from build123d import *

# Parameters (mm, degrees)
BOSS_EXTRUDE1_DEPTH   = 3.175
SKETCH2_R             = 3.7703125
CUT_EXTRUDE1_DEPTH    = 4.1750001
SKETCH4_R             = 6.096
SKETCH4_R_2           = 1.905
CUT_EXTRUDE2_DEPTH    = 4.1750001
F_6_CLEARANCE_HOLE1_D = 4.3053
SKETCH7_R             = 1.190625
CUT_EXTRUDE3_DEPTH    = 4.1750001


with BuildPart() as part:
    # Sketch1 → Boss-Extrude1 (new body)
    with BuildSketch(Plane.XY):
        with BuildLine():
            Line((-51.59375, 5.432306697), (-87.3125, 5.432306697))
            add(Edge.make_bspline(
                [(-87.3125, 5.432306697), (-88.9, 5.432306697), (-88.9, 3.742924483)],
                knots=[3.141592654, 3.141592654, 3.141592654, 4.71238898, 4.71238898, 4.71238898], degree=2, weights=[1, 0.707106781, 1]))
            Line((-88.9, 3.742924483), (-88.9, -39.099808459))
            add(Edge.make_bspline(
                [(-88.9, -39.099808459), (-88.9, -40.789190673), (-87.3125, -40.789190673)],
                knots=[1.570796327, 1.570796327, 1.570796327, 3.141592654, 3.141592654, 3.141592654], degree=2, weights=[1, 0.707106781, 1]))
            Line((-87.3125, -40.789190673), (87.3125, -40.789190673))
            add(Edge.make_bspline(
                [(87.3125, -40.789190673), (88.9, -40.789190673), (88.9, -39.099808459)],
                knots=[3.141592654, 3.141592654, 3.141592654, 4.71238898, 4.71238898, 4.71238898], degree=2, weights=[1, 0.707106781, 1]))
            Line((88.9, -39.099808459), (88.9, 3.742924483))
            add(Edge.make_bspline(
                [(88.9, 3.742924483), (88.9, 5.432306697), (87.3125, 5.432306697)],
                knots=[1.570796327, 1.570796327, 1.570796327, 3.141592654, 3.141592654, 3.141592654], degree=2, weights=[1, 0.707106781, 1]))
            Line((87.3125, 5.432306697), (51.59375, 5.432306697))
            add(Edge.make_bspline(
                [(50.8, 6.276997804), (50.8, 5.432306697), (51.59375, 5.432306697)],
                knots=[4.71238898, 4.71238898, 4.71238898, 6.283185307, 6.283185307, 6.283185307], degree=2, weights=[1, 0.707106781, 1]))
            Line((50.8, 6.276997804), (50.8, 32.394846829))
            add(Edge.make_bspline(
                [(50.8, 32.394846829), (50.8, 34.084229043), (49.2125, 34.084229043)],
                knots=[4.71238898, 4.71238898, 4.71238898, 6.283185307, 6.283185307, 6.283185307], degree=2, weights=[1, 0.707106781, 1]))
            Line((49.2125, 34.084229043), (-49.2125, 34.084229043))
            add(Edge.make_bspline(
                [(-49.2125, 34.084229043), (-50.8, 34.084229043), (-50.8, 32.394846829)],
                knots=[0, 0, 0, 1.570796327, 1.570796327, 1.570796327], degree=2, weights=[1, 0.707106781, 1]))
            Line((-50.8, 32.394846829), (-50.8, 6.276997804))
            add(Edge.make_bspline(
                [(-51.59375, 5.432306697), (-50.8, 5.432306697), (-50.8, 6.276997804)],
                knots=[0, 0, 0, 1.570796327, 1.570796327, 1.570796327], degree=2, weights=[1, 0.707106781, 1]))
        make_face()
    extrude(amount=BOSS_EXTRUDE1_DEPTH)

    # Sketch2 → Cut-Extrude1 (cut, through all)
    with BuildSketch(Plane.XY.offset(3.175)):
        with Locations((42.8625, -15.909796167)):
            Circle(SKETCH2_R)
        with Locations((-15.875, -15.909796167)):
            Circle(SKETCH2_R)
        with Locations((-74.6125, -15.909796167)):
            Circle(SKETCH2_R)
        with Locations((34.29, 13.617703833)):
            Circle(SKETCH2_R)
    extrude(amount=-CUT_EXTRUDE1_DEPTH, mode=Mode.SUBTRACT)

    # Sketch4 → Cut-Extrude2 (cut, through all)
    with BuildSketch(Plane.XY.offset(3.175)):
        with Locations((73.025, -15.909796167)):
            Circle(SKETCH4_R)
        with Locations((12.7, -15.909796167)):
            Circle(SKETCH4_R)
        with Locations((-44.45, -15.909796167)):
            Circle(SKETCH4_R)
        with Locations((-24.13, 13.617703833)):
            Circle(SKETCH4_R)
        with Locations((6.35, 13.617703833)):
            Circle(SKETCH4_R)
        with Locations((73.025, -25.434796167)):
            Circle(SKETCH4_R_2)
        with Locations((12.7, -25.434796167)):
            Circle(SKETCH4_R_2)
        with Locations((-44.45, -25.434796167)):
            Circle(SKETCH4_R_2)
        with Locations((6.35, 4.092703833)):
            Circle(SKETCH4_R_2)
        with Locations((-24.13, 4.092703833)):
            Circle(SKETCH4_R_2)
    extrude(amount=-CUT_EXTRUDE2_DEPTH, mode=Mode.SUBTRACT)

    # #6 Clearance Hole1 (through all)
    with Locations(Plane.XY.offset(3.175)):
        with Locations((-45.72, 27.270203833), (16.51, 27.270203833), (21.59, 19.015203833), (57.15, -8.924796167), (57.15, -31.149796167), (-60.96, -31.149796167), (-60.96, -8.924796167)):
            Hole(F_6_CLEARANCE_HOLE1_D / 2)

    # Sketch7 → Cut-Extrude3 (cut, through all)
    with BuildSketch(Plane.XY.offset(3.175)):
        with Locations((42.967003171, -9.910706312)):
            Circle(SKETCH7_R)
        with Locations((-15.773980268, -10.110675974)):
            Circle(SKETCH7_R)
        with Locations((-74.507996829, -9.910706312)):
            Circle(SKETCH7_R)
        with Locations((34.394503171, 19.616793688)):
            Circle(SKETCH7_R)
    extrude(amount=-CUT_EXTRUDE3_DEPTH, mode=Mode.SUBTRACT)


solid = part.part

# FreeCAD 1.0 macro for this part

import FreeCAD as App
import Part
import Sketcher
Q = App.Units.Quantity

doc = App.newDocument("Part")
params = doc.addObject("Spreadsheet::Sheet", "Params")
for row, (alias, value) in enumerate([
    ("pad1_length", "0.125 in"),
    ("sketch2_diameter", "0.296875 in"),
    ("sketch3_diameter", "0.48 in"),
    ("sketch3_diameter2", "0.15 in"),
    ("hole_diameter", "0.1695 in"),
    ("sketch5_diameter", "0.09375 in"),
], start=1):
    params.set(f"A{row}", alias)
    params.set(f"B{row}", "=" + value)
    params.setAlias(f"B{row}", alias)

body = doc.addObject("PartDesign::Body", "Body")

# Sketch on XY plane
sketch1 = body.newObject("Sketcher::SketchObject", "Sketch")
sketch1.AttachmentSupport = (doc.getObject("XY_Plane"), [""])
sketch1.MapMode = "FlatFace"
sketch1.addGeometry([
    Part.LineSegment(App.Vector(-51.59375, 5.432307, 0), App.Vector(-87.3125, 5.432307, 0)),  # 0
    Part.BSplineCurve([App.Vector(-87.3125, 5.432307, 0), App.Vector(-88.9, 5.432307, 0), App.Vector(-88.9, 3.742924, 0)], [3, 3], [3.141592654, 4.71238898], False, 2, [1, 0.707106781, 1], False),  # 1
    Part.LineSegment(App.Vector(-88.9, 3.742924, 0), App.Vector(-88.9, -39.099808, 0)),  # 2
    Part.BSplineCurve([App.Vector(-88.9, -39.099808, 0), App.Vector(-88.9, -40.789191, 0), App.Vector(-87.3125, -40.789191, 0)], [3, 3], [1.570796327, 3.141592654], False, 2, [1, 0.707106781, 1], False),  # 3
    Part.LineSegment(App.Vector(-87.3125, -40.789191, 0), App.Vector(87.3125, -40.789191, 0)),  # 4
    Part.BSplineCurve([App.Vector(87.3125, -40.789191, 0), App.Vector(88.9, -40.789191, 0), App.Vector(88.9, -39.099808, 0)], [3, 3], [3.141592654, 4.71238898], False, 2, [1, 0.707106781, 1], False),  # 5
    Part.LineSegment(App.Vector(88.9, -39.099808, 0), App.Vector(88.9, 3.742924, 0)),  # 6
    Part.BSplineCurve([App.Vector(88.9, 3.742924, 0), App.Vector(88.9, 5.432307, 0), App.Vector(87.3125, 5.432307, 0)], [3, 3], [1.570796327, 3.141592654], False, 2, [1, 0.707106781, 1], False),  # 7
    Part.LineSegment(App.Vector(87.3125, 5.432307, 0), App.Vector(51.59375, 5.432307, 0)),  # 8
    Part.BSplineCurve([App.Vector(50.8, 6.276998, 0), App.Vector(50.8, 5.432307, 0), App.Vector(51.59375, 5.432307, 0)], [3, 3], [4.71238898, 6.283185307], False, 2, [1, 0.707106781, 1], False),  # 9
    Part.LineSegment(App.Vector(50.8, 6.276998, 0), App.Vector(50.8, 32.394847, 0)),  # 10
    Part.BSplineCurve([App.Vector(50.8, 32.394847, 0), App.Vector(50.8, 34.084229, 0), App.Vector(49.2125, 34.084229, 0)], [3, 3], [4.71238898, 6.283185307], False, 2, [1, 0.707106781, 1], False),  # 11
    Part.LineSegment(App.Vector(49.2125, 34.084229, 0), App.Vector(-49.2125, 34.084229, 0)),  # 12
    Part.BSplineCurve([App.Vector(-49.2125, 34.084229, 0), App.Vector(-50.8, 34.084229, 0), App.Vector(-50.8, 32.394847, 0)], [3, 3], [0, 1.570796327], False, 2, [1, 0.707106781, 1], False),  # 13
    Part.LineSegment(App.Vector(-50.8, 32.394847, 0), App.Vector(-50.8, 6.276998, 0)),  # 14
    Part.BSplineCurve([App.Vector(-51.59375, 5.432307, 0), App.Vector(-50.8, 5.432307, 0), App.Vector(-50.8, 6.276998, 0)], [3, 3], [0, 1.570796327], False, 2, [1, 0.707106781, 1], False),  # 15
], False)
sketch1.addConstraint([
    Sketcher.Constraint("Block", 1),
    Sketcher.Constraint("Block", 3),
    Sketcher.Constraint("Block", 5),
    Sketcher.Constraint("Block", 7),
    Sketcher.Constraint("Block", 9),
    Sketcher.Constraint("Block", 11),
    Sketcher.Constraint("Block", 13),
    Sketcher.Constraint("Block", 15),
    Sketcher.Constraint("Coincident", 0, 2, 1, 1),
    Sketcher.Constraint("Coincident", 1, 2, 2, 1),
    Sketcher.Constraint("Coincident", 2, 2, 3, 1),
    Sketcher.Constraint("Coincident", 3, 2, 4, 1),
    Sketcher.Constraint("Coincident", 4, 2, 5, 1),
    Sketcher.Constraint("Coincident", 5, 2, 6, 1),
    Sketcher.Constraint("Coincident", 6, 2, 7, 1),
    Sketcher.Constraint("Coincident", 7, 2, 8, 1),
    Sketcher.Constraint("Coincident", 8, 2, 9, 2),
    Sketcher.Constraint("Coincident", 9, 1, 10, 1),
    Sketcher.Constraint("Coincident", 10, 2, 11, 1),
    Sketcher.Constraint("Coincident", 11, 2, 12, 1),
    Sketcher.Constraint("Coincident", 12, 2, 13, 1),
    Sketcher.Constraint("Coincident", 13, 2, 14, 1),
    Sketcher.Constraint("Coincident", 14, 2, 15, 2),
    Sketcher.Constraint("Coincident", 15, 1, 0, 1),
])
pad1 = body.newObject("PartDesign::Pad", "Pad")
pad1.Profile = sketch1
pad1.setExpression("Length", "Params.pad1_length")

# Sketch on XY plane
sketch2 = body.newObject("Sketcher::SketchObject", "Sketch001")
sketch2.AttachmentSupport = (doc.getObject("XY_Plane"), [""])
sketch2.MapMode = "FlatFace"
sketch2.AttachmentOffset = App.Placement(App.Vector(0, 0, 0.125 * 25.4), App.Rotation())
sketch2.addGeometry([
    Part.Circle(App.Vector(42.8625, -15.909796, 0), App.Vector(0, 0, 1), 3.770313),
    Part.Circle(App.Vector(-15.875, -15.909796, 0), App.Vector(0, 0, 1), 3.770313),
    Part.Circle(App.Vector(-74.6125, -15.909796, 0), App.Vector(0, 0, 1), 3.770313),
    Part.Circle(App.Vector(34.29, 13.617704, 0), App.Vector(0, 0, 1), 3.770313),
], False)
sketch2.addConstraint([
    Sketcher.Constraint("Equal", 0, 1),
    Sketcher.Constraint("Equal", 1, 2),
    Sketcher.Constraint("Equal", 2, 3),
    Sketcher.Constraint("Horizontal", 0, 3, 1, 3),
    Sketcher.Constraint("Horizontal", 1, 3, 2, 3),
    Sketcher.Constraint("Diameter", 0, Q("0.296875 in")),
    Sketcher.Constraint("DistanceX", -1, 1, 3, 3, Q("1.35 in")),
    Sketcher.Constraint("DistanceX", -1, 1, 0, 3, Q("1.6875 in")),
    Sketcher.Constraint("DistanceX", 1, 3, -1, 1, Q("0.625 in")),
    Sketcher.Constraint("DistanceX", 2, 3, -1, 1, Q("2.9375 in")),
    Sketcher.Constraint("DistanceY", 0, 3, 3, 3, Q("1.1625 in")),
    Sketcher.Constraint("DistanceY", 0, 3, -1, 1, 15.909796),
])
sketch2.setExpression("Constraints[5]", "Params.sketch2_diameter")
pocket1 = body.newObject("PartDesign::Pocket", "Pocket")
pocket1.Profile = sketch2
pocket1.Type = "ThroughAll"

# Sketch on XY plane
sketch3 = body.newObject("Sketcher::SketchObject", "Sketch002")
sketch3.AttachmentSupport = (doc.getObject("XY_Plane"), [""])
sketch3.MapMode = "FlatFace"
sketch3.AttachmentOffset = App.Placement(App.Vector(0, 0, 0.125 * 25.4), App.Rotation())
sketch3.addGeometry([
    Part.Circle(App.Vector(73.025, -15.909796, 0), App.Vector(0, 0, 1), 6.096),  # 0
    Part.Circle(App.Vector(12.7, -15.909796, 0), App.Vector(0, 0, 1), 6.096),  # 1
    Part.Circle(App.Vector(-44.45, -15.909796, 0), App.Vector(0, 0, 1), 6.096),  # 2
    Part.Circle(App.Vector(-24.13, 13.617704, 0), App.Vector(0, 0, 1), 6.096),  # 3
    Part.Circle(App.Vector(6.35, 13.617704, 0), App.Vector(0, 0, 1), 6.096),  # 4
    Part.Circle(App.Vector(73.025, -25.434796, 0), App.Vector(0, 0, 1), 1.905),  # 5
    Part.Circle(App.Vector(12.7, -25.434796, 0), App.Vector(0, 0, 1), 1.905),  # 6
    Part.Circle(App.Vector(-44.45, -25.434796, 0), App.Vector(0, 0, 1), 1.905),  # 7
    Part.Circle(App.Vector(6.35, 4.092704, 0), App.Vector(0, 0, 1), 1.905),  # 8
    Part.Circle(App.Vector(-24.13, 4.092704, 0), App.Vector(0, 0, 1), 1.905),  # 9
], False)
sketch3.addConstraint([
    Sketcher.Constraint("Equal", 0, 1),
    Sketcher.Constraint("Equal", 1, 2),
    Sketcher.Constraint("Equal", 2, 3),
    Sketcher.Constraint("Equal", 3, 4),
    Sketcher.Constraint("Equal", 5, 6),
    Sketcher.Constraint("Equal", 6, 7),
    Sketcher.Constraint("Equal", 7, 8),
    Sketcher.Constraint("Equal", 8, 9),
    Sketcher.Constraint("Horizontal", 0, 3, 1, 3),
    Sketcher.Constraint("Horizontal", 1, 3, 2, 3),
    Sketcher.Constraint("Horizontal", 3, 3, 4, 3),
    Sketcher.Constraint("Horizontal", 5, 3, 6, 3),
    Sketcher.Constraint("Horizontal", 6, 3, 7, 3),
    Sketcher.Constraint("Horizontal", 8, 3, 9, 3),
    Sketcher.Constraint("Vertical", 0, 3, 5, 3),
    Sketcher.Constraint("Vertical", 1, 3, 6, 3),
    Sketcher.Constraint("Vertical", 2, 3, 7, 3),
    Sketcher.Constraint("Vertical", 4, 3, 8, 3),
    Sketcher.Constraint("Vertical", 3, 3, 9, 3),
    Sketcher.Constraint("Diameter", 0, Q("0.48 in")),
    Sketcher.Constraint("Diameter", 5, Q("0.15 in")),
    Sketcher.Constraint("DistanceX", 2, 3, 4, 3, Q("2 in")),
    Sketcher.Constraint("DistanceX", -1, 1, 1, 3, Q("0.5 in")),
    Sketcher.Constraint("DistanceX", 2, 3, 3, 3, Q("0.8 in")),
    Sketcher.Constraint("DistanceX", 2, 3, -1, 1, Q("1.75 in")),
    Sketcher.Constraint("DistanceX", -1, 1, 0, 3, Q("2.875 in")),
    Sketcher.Constraint("DistanceY", 5, 3, 0, 3, Q("0.375 in")),
    Sketcher.Constraint("DistanceY", 8, 3, 4, 3, Q("0.375 in")),
    Sketcher.Constraint("DistanceY", 2, 3, 3, 3, Q("1.1625 in")),
    Sketcher.Constraint("DistanceY", 0, 3, -1, 1, 15.909796),
])
sketch3.setExpression("Constraints[19]", "Params.sketch3_diameter")
sketch3.setExpression("Constraints[20]", "Params.sketch3_diameter2")
pocket2 = body.newObject("PartDesign::Pocket", "Pocket001")
pocket2.Profile = sketch3
pocket2.Type = "ThroughAll"

# Sketch on XY plane
sketch4 = body.newObject("Sketcher::SketchObject", "Sketch003")
sketch4.AttachmentSupport = (doc.getObject("XY_Plane"), [""])
sketch4.MapMode = "FlatFace"
sketch4.AttachmentOffset = App.Placement(App.Vector(0, 0, 0.125 * 25.4), App.Rotation())
sketch4.addGeometry([
    Part.Circle(App.Vector(-45.72, 27.270204, 0), App.Vector(0, 0, 1), 2.15265),  # 0
    Part.Circle(App.Vector(16.51, 27.270204, 0), App.Vector(0, 0, 1), 2.15265),  # 1
    Part.Circle(App.Vector(21.59, 19.015204, 0), App.Vector(0, 0, 1), 2.15265),  # 2
    Part.Circle(App.Vector(57.15, -8.924796, 0), App.Vector(0, 0, 1), 2.15265),  # 3
    Part.Circle(App.Vector(57.15, -31.149796, 0), App.Vector(0, 0, 1), 2.15265),  # 4
    Part.Circle(App.Vector(-60.96, -31.149796, 0), App.Vector(0, 0, 1), 2.15265),  # 5
    Part.Circle(App.Vector(-60.96, -8.924796, 0), App.Vector(0, 0, 1), 2.15265),  # 6
], False)
sketch4.addConstraint([
    Sketcher.Constraint("Equal", 0, 1),
    Sketcher.Constraint("Equal", 1, 2),
    Sketcher.Constraint("Equal", 2, 3),
    Sketcher.Constraint("Equal", 3, 4),
    Sketcher.Constraint("Equal", 4, 5),
    Sketcher.Constraint("Equal", 5, 6),
    Sketcher.Constraint("Horizontal", 0, 3, 1, 3),
    Sketcher.Constraint("Horizontal", 4, 3, 5, 3),
    Sketcher.Constraint("Horizontal", 3, 3, 6, 3),
    Sketcher.Constraint("Vertical", 3, 3, 4, 3),
    Sketcher.Constraint("Vertical", 5, 3, 6, 3),
    Sketcher.Constraint("Diameter", 0, Q("0.1695 in")),
    Sketcher.Constraint("DistanceX", 0, 3, -1, 1, Q("1.8 in")),
    Sketcher.Constraint("DistanceX", 5, 3, -1, 1, Q("2.4 in")),
    Sketcher.Constraint("DistanceX", 1, 3, 2, 3, Q("0.2 in")),
    Sketcher.Constraint("DistanceX", 2, 3, 3, 3, Q("1.4 in")),
    Sketcher.Constraint("DistanceY", 3, 3, 2, 3, Q("1.1 in")),
    Sketcher.Constraint("DistanceY", 4, 3, 1, 3, Q("2.3 in")),
    Sketcher.Constraint("DistanceX", -1, 1, 1, 3, Q("0.65 in")),
    Sketcher.Constraint("DistanceY", 2, 3, 1, 3, Q("0.325 in")),
    Sketcher.Constraint("DistanceY", -1, 1, 0, 3, 27.270204),
])
doc.recompute()
hole = body.newObject("PartDesign::Hole", "Hole")
hole.Profile = sketch4
hole.ThreadType = "None"
hole.setExpression("Diameter", "Params.hole_diameter")
hole.DepthType = "ThroughAll"

# Sketch on XY plane
sketch5 = body.newObject("Sketcher::SketchObject", "Sketch004")
sketch5.AttachmentSupport = (doc.getObject("XY_Plane"), [""])
sketch5.MapMode = "FlatFace"
sketch5.AttachmentOffset = App.Placement(App.Vector(0, 0, 0.125 * 25.4), App.Rotation())
sketch5.addGeometry([
    Part.Circle(App.Vector(42.967003, -9.910706, 0), App.Vector(0, 0, 1), 1.190625),
    Part.Circle(App.Vector(-15.77398, -10.110676, 0), App.Vector(0, 0, 1), 1.190625),
    Part.Circle(App.Vector(-74.507997, -9.910706, 0), App.Vector(0, 0, 1), 1.190625),
    Part.Circle(App.Vector(34.394503, 19.616794, 0), App.Vector(0, 0, 1), 1.190625),
], False)
sketch5.addConstraint([
    Sketcher.Constraint("Equal", 0, 1),
    Sketcher.Constraint("Equal", 1, 2),
    Sketcher.Constraint("Equal", 2, 3),
    Sketcher.Constraint("Horizontal", 0, 3, 2, 3),
    Sketcher.Constraint("Diameter", 0, Q("0.09375 in")),
    Sketcher.Constraint("DistanceX", 2, 3, 0, 3, Q("4.625 in")),
    Sketcher.Constraint("DistanceX", 3, 3, 0, 3, Q("0.3375 in")),
    Sketcher.Constraint("DistanceY", 0, 3, 3, 3, Q("1.1625 in")),
    Sketcher.Constraint("DistanceX", 1, 3, -1, 1, 15.77398),
    Sketcher.Constraint("DistanceY", 1, 3, 0, 3, 0.19997),
    Sketcher.Constraint("DistanceX", -1, 1, 0, 3, 42.967003),
    Sketcher.Constraint("DistanceY", 0, 3, -1, 1, 9.910706),
])
sketch5.setExpression("Constraints[4]", "Params.sketch5_diameter")
pocket3 = body.newObject("PartDesign::Pocket", "Pocket002")
pocket3.Profile = sketch5
pocket3.Type = "ThroughAll"

doc.recompute()
